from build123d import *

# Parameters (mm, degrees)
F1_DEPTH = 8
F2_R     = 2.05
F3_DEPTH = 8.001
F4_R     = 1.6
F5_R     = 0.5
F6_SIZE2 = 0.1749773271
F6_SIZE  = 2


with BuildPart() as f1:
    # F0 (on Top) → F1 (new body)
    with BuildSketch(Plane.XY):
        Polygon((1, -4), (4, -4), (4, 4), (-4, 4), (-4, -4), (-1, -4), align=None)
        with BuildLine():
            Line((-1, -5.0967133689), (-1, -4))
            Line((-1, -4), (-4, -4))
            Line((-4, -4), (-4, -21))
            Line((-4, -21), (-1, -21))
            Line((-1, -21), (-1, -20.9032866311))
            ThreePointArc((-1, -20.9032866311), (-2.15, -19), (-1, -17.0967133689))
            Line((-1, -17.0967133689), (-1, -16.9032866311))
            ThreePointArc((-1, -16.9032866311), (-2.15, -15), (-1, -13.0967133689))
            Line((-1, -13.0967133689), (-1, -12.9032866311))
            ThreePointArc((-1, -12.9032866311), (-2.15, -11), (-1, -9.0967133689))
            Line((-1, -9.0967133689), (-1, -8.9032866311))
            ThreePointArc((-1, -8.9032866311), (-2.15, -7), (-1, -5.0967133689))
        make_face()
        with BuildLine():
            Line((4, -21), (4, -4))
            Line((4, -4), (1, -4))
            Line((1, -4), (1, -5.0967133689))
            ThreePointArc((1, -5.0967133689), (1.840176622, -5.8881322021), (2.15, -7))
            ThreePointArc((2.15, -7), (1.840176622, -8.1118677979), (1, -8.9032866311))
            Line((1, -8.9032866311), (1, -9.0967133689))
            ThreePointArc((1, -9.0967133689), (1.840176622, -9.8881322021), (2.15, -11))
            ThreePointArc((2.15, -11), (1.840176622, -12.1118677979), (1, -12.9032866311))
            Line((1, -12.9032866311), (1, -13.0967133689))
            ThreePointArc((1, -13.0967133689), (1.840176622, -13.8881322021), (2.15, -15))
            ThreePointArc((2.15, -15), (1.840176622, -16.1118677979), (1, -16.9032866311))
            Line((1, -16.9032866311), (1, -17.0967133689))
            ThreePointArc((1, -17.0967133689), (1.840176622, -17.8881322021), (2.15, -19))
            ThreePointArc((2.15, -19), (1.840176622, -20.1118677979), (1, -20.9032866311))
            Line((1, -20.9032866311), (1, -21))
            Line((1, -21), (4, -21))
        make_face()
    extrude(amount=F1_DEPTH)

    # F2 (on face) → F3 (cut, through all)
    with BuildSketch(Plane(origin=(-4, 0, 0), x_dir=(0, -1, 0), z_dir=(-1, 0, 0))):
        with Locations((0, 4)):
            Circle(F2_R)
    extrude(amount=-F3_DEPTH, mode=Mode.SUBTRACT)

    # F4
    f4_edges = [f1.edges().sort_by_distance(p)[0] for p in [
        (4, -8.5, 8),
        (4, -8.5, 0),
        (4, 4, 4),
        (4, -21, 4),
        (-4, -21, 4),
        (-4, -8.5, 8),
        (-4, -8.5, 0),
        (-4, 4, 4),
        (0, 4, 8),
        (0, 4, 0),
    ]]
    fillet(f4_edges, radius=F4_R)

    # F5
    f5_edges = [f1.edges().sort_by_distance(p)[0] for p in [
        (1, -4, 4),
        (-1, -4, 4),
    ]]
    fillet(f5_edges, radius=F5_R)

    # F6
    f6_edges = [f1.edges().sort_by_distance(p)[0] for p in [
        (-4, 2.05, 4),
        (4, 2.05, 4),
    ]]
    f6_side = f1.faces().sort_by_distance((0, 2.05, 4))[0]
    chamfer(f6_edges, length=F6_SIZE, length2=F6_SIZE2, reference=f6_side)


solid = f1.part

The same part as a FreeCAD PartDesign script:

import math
import FreeCAD as App
import Part
import Sketcher

V = App.Vector
Q = App.Units.Quantity


def edges_at(feature, points):
    """Names of the edges that pass closest to the given points."""
    edges = feature.Shape.Edges
    near = lambda p: min(range(len(edges)), key=lambda i: edges[i].distToShape(Part.Vertex(*p))[0])
    return sorted({f"Edge{near(p) + 1}" for p in points})

doc = App.newDocument("Part")
body = doc.addObject("PartDesign::Body", "Body")

sketch1 = body.newObject("Sketcher::SketchObject", "Sketch")
sketch1.AttachmentSupport = (doc.getObject("XY_Plane"), [""])
sketch1.MapMode = "FlatFace"
sketch1.addGeometry([
    Part.LineSegment(V(4, 4, 0), V(-4, 4, 0)),
    Part.LineSegment(V(-4, 4, 0), V(-4, -21, 0)),
    Part.LineSegment(V(-4, -21, 0), V(-1, -21, 0)),
    Part.LineSegment(V(-1, -21, 0), V(-1, -20.9, 0)),
    Part.ArcOfCircle(Part.Circle(V(0, -19, 0), V(0, 0, 1), 2.15), math.radians(118), math.radians(242)),
    Part.LineSegment(V(-1, -17.1, 0), V(-1, -16.9, 0)),
    Part.ArcOfCircle(Part.Circle(V(0, -15, 0), V(0, 0, 1), 2.15), math.radians(118), math.radians(242)),
    Part.LineSegment(V(-1, -13.1, 0), V(-1, -12.9, 0)),
    Part.ArcOfCircle(Part.Circle(V(0, -11, 0), V(0, 0, 1), 2.15), math.radians(118), math.radians(242)),
    Part.LineSegment(V(-1, -9.1, 0), V(-1, -8.9, 0)),
    Part.ArcOfCircle(Part.Circle(V(0, -7, 0), V(0, 0, 1), 2.15), math.radians(118), math.radians(242)),
    Part.LineSegment(V(-1, -5.1, 0), V(-1, -4, 0)),
    Part.LineSegment(V(-1, -4, 0), V(1, -4, 0)),
    Part.LineSegment(V(1, -4, 0), V(1, -5.1, 0)),
    Part.ArcOfCircle(Part.Circle(V(0, -7, 0), V(0, 0, 1), 2.15), math.radians(0), math.radians(62)),
    Part.ArcOfCircle(Part.Circle(V(0, -7, 0), V(0, 0, 1), 2.15), math.radians(-62), math.radians(0)),
    Part.LineSegment(V(1, -8.9, 0), V(1, -9.1, 0)),
    Part.ArcOfCircle(Part.Circle(V(0, -11, 0), V(0, 0, 1), 2.15), math.radians(0), math.radians(62)),
    Part.ArcOfCircle(Part.Circle(V(0, -11, 0), V(0, 0, 1), 2.15), math.radians(-62), math.radians(0)),
    Part.LineSegment(V(1, -12.9, 0), V(1, -13.1, 0)),
    Part.ArcOfCircle(Part.Circle(V(0, -15, 0), V(0, 0, 1), 2.15), math.radians(0), math.radians(62)),
    Part.ArcOfCircle(Part.Circle(V(0, -15, 0), V(0, 0, 1), 2.15), math.radians(-62), math.radians(0)),
    Part.LineSegment(V(1, -16.9, 0), V(1, -17.1, 0)),
    Part.ArcOfCircle(Part.Circle(V(0, -19, 0), V(0, 0, 1), 2.15), math.radians(0), math.radians(62)),
    Part.ArcOfCircle(Part.Circle(V(0, -19, 0), V(0, 0, 1), 2.15), math.radians(-62), math.radians(0)),
    Part.LineSegment(V(1, -20.9, 0), V(1, -21, 0)),
    Part.LineSegment(V(1, -21, 0), V(4, -21, 0)),
    Part.LineSegment(V(4, -21, 0), V(4, 4, 0)),
], False)
sketch1.addConstraint([
    Sketcher.Constraint("Coincident", 0, 2, 1, 1),
    Sketcher.Constraint("Coincident", 1, 2, 2, 1),
    Sketcher.Constraint("Coincident", 2, 2, 3, 1),
    Sketcher.Constraint("Coincident", 3, 2, 4, 2),
    Sketcher.Constraint("Coincident", 4, 1, 5, 1),
    Sketcher.Constraint("Coincident", 5, 2, 6, 2),
    Sketcher.Constraint("Coincident", 6, 1, 7, 1),
    Sketcher.Constraint("Coincident", 7, 2, 8, 2),
    Sketcher.Constraint("Coincident", 8, 1, 9, 1),
    Sketcher.Constraint("Coincident", 9, 2, 10, 2),
    Sketcher.Constraint("Coincident", 10, 1, 11, 1),
    Sketcher.Constraint("Coincident", 11, 2, 12, 1),
    Sketcher.Constraint("Coincident", 12, 2, 13, 1),
    Sketcher.Constraint("Coincident", 13, 2, 14, 2),
    Sketcher.Constraint("Tangent", 14, 1, 15, 2),
    Sketcher.Constraint("Coincident", 15, 1, 16, 1),
    Sketcher.Constraint("Coincident", 16, 2, 17, 2),
    Sketcher.Constraint("Tangent", 17, 1, 18, 2),
    Sketcher.Constraint("Coincident", 18, 1, 19, 1),
    Sketcher.Constraint("Coincident", 19, 2, 20, 2),
    Sketcher.Constraint("Tangent", 20, 1, 21, 2),
    Sketcher.Constraint("Coincident", 21, 1, 22, 1),
    Sketcher.Constraint("Coincident", 22, 2, 23, 2),
    Sketcher.Constraint("Tangent", 23, 1, 24, 2),
    Sketcher.Constraint("Coincident", 24, 1, 25, 1),
    Sketcher.Constraint("Coincident", 25, 2, 26, 1),
    Sketcher.Constraint("Coincident", 26, 2, 27, 1),
    Sketcher.Constraint("Coincident", 27, 2, 0, 1),
    Sketcher.Constraint("Horizontal", 0),
    Sketcher.Constraint("Vertical", 1),
    Sketcher.Constraint("Horizontal", 2),
    Sketcher.Constraint("Vertical", 3),
    Sketcher.Constraint("Vertical", 5),
    Sketcher.Constraint("Vertical", 7),
    Sketcher.Constraint("Vertical", 9),
    Sketcher.Constraint("Vertical", 11),
    Sketcher.Constraint("Horizontal", 12),
    Sketcher.Constraint("Vertical", 13),
    Sketcher.Constraint("Vertical", 16),
    Sketcher.Constraint("Vertical", 19),
    Sketcher.Constraint("Vertical", 22),
    Sketcher.Constraint("Vertical", 25),
    Sketcher.Constraint("Horizontal", 26),
    Sketcher.Constraint("Vertical", 27),
    Sketcher.Constraint("Coincident", 14, 3, 10, 3),
    Sketcher.Constraint("Coincident", 17, 3, 8, 3),
    Sketcher.Constraint("Coincident", 20, 3, 6, 3),
    Sketcher.Constraint("Coincident", 23, 3, 4, 3),
    Sketcher.Constraint("Equal", 4, 6),
    Sketcher.Constraint("Equal", 6, 8),
    Sketcher.Constraint("Equal", 8, 10),
    Sketcher.Constraint("Equal", 10, 14),
    Sketcher.Constraint("Equal", 14, 15),
    Sketcher.Constraint("Equal", 15, 17),
    Sketcher.Constraint("Equal", 17, 18),
    Sketcher.Constraint("Equal", 18, 20),
    Sketcher.Constraint("Equal", 20, 21),
    Sketcher.Constraint("Equal", 21, 23),
    Sketcher.Constraint("Equal", 23, 24),
    Sketcher.Constraint("Symmetric", 10, 1, 13, 2, -2),
    Sketcher.Constraint("Symmetric", 8, 1, 16, 2, -2),
    Sketcher.Constraint("Symmetric", 6, 1, 19, 2, -2),
    Sketcher.Constraint("Symmetric", 4, 1, 22, 2, -2),
    Sketcher.Constraint("Symmetric", 2, 2, 25, 2, -2),
    Sketcher.Constraint("Horizontal", 15, 3, 14, 1),
    Sketcher.Constraint("Horizontal", 18, 3, 17, 1),
    Sketcher.Constraint("Horizontal", 21, 3, 20, 1),
    Sketcher.Constraint("Horizontal", 24, 3, 23, 1),
    Sketcher.Constraint("Vertical", 3, 2, 4, 1),
    Sketcher.Constraint("Vertical", 5, 2, 6, 1),
    Sketcher.Constraint("Vertical", 7, 2, 8, 1),
    Sketcher.Constraint("Vertical", 9, 2, 10, 1),
    Sketcher.Constraint("Equal", 2, 26),
    Sketcher.Constraint("Equal", 5, 7),
    Sketcher.Constraint("Equal", 7, 9),
    Sketcher.Constraint("DistanceX", 0, 2, 0, 1, Q("8 mm")),
    Sketcher.Constraint("DistanceX", 2, 1, 2, 2, Q("3 mm")),
    Sketcher.Constraint("DistanceY", 1, 2, 1, 1, Q("25 mm")),
    Sketcher.Constraint("Radius", 4, Q("2.15 mm")),
    Sketcher.Constraint("DistanceY", 4, 3, -1, 1, Q("19 mm")),
    Sketcher.Constraint("DistanceY", 6, 3, -1, 1, Q("15 mm")),
    Sketcher.Constraint("DistanceY", -1, 1, 0, 2, Q("4 mm")),
    Sketcher.Constraint("DistanceY", 11, 2, -1, 1, Q("4 mm")),
])
pad1 = body.newObject("PartDesign::Pad", "Pad")
pad1.Profile = sketch1
pad1.Length = 8

sketch2 = body.newObject("Sketcher::SketchObject", "Sketch001")
sketch2.AttachmentSupport = (doc.getObject("YZ_Plane"), [""])
sketch2.MapMode = "FlatFace"
sketch2.AttachmentOffset = App.Placement(V(0, 0, -4), App.Rotation())
sketch2.addGeometry(Part.Circle(V(0, 4, 0), V(0, 0, 1), 2), False)
sketch2.addConstraint([
    Sketcher.Constraint("PointOnObject", 0, 3, -2),
    Sketcher.Constraint("Diameter", 0, Q("4.1 mm")),
    Sketcher.Constraint("DistanceY", -1, 1, 0, 3, Q("4 mm")),
])
pocket1 = body.newObject("PartDesign::Pocket", "Pocket")
pocket1.Profile = sketch2
pocket1.Type = "ThroughAll"
pocket1.Reversed = True
doc.recompute()

fillet = body.newObject("PartDesign::Fillet", "Fillet")
fillet.Base = (pocket1, edges_at(pocket1, [
    (4, -8.5, 8),
    (4, -8.5, 0),
    (4, 4, 4),
    (4, -21, 4),
    (-4, -21, 4),
    (-4, -8.5, 8),
    (-4, -8.5, 0),
    (-4, 4, 4),
    (0, 4, 8),
    (0, 4, 0),
]))
fillet.Radius = 1.6
doc.recompute()

fillet2 = body.newObject("PartDesign::Fillet", "Fillet001")
fillet2.Base = (fillet, edges_at(fillet, [(1, -4, 4), (-1, -4, 4)]))
fillet2.Radius = 0.5
doc.recompute()

chamfer = body.newObject("PartDesign::Chamfer", "Chamfer")
chamfer.Base = (fillet2, edges_at(fillet2, [(-4, 2.05, 4), (4, 2.05, 4)]))
chamfer.ChamferType = "Two distances"
chamfer.Size = 2
chamfer.Size2 = 0.174977
chamfer.FlipDirection = True

doc.recompute()
